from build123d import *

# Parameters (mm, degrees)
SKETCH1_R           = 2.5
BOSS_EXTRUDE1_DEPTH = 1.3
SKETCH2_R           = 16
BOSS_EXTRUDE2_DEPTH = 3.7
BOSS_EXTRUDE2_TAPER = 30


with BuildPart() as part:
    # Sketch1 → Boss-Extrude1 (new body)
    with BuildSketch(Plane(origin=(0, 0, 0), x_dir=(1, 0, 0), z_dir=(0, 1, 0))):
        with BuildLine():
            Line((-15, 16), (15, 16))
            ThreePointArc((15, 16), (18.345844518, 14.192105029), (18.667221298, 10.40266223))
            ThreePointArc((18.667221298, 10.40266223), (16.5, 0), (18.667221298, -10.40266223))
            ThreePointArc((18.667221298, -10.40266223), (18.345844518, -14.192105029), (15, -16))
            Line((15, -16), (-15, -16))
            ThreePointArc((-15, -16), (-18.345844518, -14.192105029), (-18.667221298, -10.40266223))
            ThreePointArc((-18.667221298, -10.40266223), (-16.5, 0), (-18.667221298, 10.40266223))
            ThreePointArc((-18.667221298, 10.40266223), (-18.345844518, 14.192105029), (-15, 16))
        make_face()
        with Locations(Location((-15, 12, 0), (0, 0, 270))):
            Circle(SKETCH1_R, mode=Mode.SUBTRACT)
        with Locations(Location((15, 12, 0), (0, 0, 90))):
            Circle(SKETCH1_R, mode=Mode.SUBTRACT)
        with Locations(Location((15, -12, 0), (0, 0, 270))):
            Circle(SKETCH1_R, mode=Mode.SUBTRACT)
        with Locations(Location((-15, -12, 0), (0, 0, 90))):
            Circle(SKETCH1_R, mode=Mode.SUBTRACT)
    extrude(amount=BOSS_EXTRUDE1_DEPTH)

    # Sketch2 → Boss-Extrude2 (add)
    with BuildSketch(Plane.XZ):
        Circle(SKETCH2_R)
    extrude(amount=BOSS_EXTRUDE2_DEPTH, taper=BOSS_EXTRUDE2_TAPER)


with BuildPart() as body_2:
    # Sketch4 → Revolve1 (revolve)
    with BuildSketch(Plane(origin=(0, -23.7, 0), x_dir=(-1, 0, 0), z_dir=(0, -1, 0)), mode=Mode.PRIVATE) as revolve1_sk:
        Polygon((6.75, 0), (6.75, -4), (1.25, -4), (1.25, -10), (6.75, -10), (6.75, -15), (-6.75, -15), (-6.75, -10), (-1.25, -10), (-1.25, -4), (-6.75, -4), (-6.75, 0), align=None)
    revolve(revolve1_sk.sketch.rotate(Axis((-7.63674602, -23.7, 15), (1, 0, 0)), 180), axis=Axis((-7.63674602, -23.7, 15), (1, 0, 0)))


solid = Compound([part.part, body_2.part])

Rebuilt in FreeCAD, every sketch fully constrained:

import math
import FreeCAD as App
import Part
import Sketcher

doc = App.newDocument("Part")
body = doc.addObject("PartDesign::Body", "Body")

# Sketch on XZ plane
sketch1 = body.newObject("Sketcher::SketchObject", "Sketch")
sketch1.AttachmentSupport = (doc.getObject("XZ_Plane"), [""])
sketch1.MapMode = "FlatFace"
sketch1.addGeometry(Part.LineSegment(App.Vector(15, -16, 0), App.Vector(-15, -16, 0)), False)
sketch1.addGeometry(Part.ArcOfCircle(Part.Circle(App.Vector(-15, -12, 0), App.Vector(0, 0, 1), 4), math.radians(156), math.radians(270)), False)
sketch1.addGeometry(Part.ArcOfCircle(Part.Circle(App.Vector(-42.5, 0, 0), App.Vector(0, 0, 1), 26.1), math.radians(-24), math.radians(24)), False)
sketch1.addGeometry(Part.ArcOfCircle(Part.Circle(App.Vector(-15, 12, 0), App.Vector(0, 0, 1), 4), math.radians(90), math.radians(204)), False)
sketch1.addGeometry(Part.LineSegment(App.Vector(-15, 16, 0), App.Vector(15, 16, 0)), False)
sketch1.addGeometry(Part.ArcOfCircle(Part.Circle(App.Vector(15, 12, 0), App.Vector(0, 0, 1), 4), math.radians(-24), math.radians(90)), False)
sketch1.addGeometry(Part.ArcOfCircle(Part.Circle(App.Vector(42.5, 0, 0), App.Vector(0, 0, 1), 26.1), math.radians(156), math.radians(204)), False)
sketch1.addGeometry(Part.ArcOfCircle(Part.Circle(App.Vector(15, -12, 0), App.Vector(0, 0, 1), 4), math.radians(-90), math.radians(24)), False)
sketch1.addGeometry(Part.Circle(App.Vector(15, 12, 0), App.Vector(0, 0, 1), 2.5), False)
sketch1.addGeometry(Part.Circle(App.Vector(-15, 12, 0), App.Vector(0, 0, 1), 2.5), False)
sketch1.addGeometry(Part.Circle(App.Vector(15, -12, 0), App.Vector(0, 0, 1), 2.5), False)
sketch1.addGeometry(Part.Circle(App.Vector(-15, -12, 0), App.Vector(0, 0, 1), 2.5), False)
sketch1.addConstraint(Sketcher.Constraint("Tangent", 0, 2, 1, 2))
sketch1.addConstraint(Sketcher.Constraint("Tangent", 1, 1, 2, 1))
sketch1.addConstraint(Sketcher.Constraint("Tangent", 2, 2, 3, 2))
sketch1.addConstraint(Sketcher.Constraint("Tangent", 3, 1, 4, 1))
sketch1.addConstraint(Sketcher.Constraint("Tangent", 4, 2, 5, 2))
sketch1.addConstraint(Sketcher.Constraint("Tangent", 5, 1, 6, 1))
sketch1.addConstraint(Sketcher.Constraint("Tangent", 6, 2, 7, 2))
sketch1.addConstraint(Sketcher.Constraint("Tangent", 7, 1, 0, 1))
sketch1.addConstraint(Sketcher.Constraint("Horizontal", 0))
sketch1.addConstraint(Sketcher.Constraint("Horizontal", 4))
sketch1.addConstraint(Sketcher.Constraint("Coincident", 8, 3, 5, 3))
sketch1.addConstraint(Sketcher.Constraint("Coincident", 9, 3, 3, 3))
sketch1.addConstraint(Sketcher.Constraint("Coincident", 10, 3, 7, 3))
sketch1.addConstraint(Sketcher.Constraint("Coincident", 11, 3, 1, 3))
sketch1.addConstraint(Sketcher.Constraint("Equal", 1, 3))
sketch1.addConstraint(Sketcher.Constraint("Equal", 3, 5))
sketch1.addConstraint(Sketcher.Constraint("Equal", 2, 6))
sketch1.addConstraint(Sketcher.Constraint("Equal", 5, 7))
sketch1.addConstraint(Sketcher.Constraint("Equal", 8, 9))
sketch1.addConstraint(Sketcher.Constraint("Equal", 9, 10))
sketch1.addConstraint(Sketcher.Constraint("Equal", 10, 11))
sketch1.addConstraint(Sketcher.Constraint("Symmetric", 1, 3, 5, 3, -1, 1))
sketch1.addConstraint(Sketcher.Constraint("Symmetric", 2, 3, 6, 3, -2))
sketch1.addConstraint(Sketcher.Constraint("Diameter", 8, 5.0))
sketch1.addConstraint(Sketcher.Constraint("Radius", 1, 4.0))
sketch1.addConstraint(Sketcher.Constraint("DistanceX", 0, 2, 0, 1, 30.0))
sketch1.addConstraint(Sketcher.Constraint("Radius", 2, 26.05))
sketch1.addConstraint(Sketcher.Constraint("DistanceY", 1, 3, -1, 1, 12.0))
pad1 = body.newObject("PartDesign::Pad", "Pad")
pad1.Profile = sketch1
pad1.Length = 1.3
pad1.Reversed = True

# Sketch on XZ plane
sketch2 = body.newObject("Sketcher::SketchObject", "Sketch001")
sketch2.AttachmentSupport = (doc.getObject("XZ_Plane"), [""])
sketch2.MapMode = "FlatFace"
sketch2.addGeometry(Part.Circle(App.Vector(0, 0, 0), App.Vector(0, 0, 1), 16), False)
sketch2.addConstraint(Sketcher.Constraint("Coincident", 0, 3, -1, 1))
sketch2.addConstraint(Sketcher.Constraint("Diameter", 0, 32.0))
pad2 = body.newObject("PartDesign::Pad", "Pad001")
pad2.Profile = sketch2
pad2.Length = 3.7
pad2.TaperAngle = -30
body2 = doc.addObject("PartDesign::Body", "Body001")

# Sketch on XZ plane
sketch3 = body2.newObject("Sketcher::SketchObject", "Sketch002")
sketch3.AttachmentSupport = (doc.getObject("XZ_Plane001"), [""])
sketch3.MapMode = "FlatFace"
sketch3.AttachmentOffset = App.Placement(App.Vector(0, 0, 23.7), App.Rotation())
sketch3.addGeometry(Part.LineSegment(App.Vector(-6.8, 4, 0), App.Vector(-6.8, 0, 0)), False)
sketch3.addGeometry(Part.LineSegment(App.Vector(-6.8, 0, 0), App.Vector(6.8, 0, 0)), False)
sketch3.addGeometry(Part.LineSegment(App.Vector(6.8, 0, 0), App.Vector(6.8, 4, 0)), False)
sketch3.addGeometry(Part.LineSegment(App.Vector(6.8, 4, 0), App.Vector(1.2, 4, 0)), False)
sketch3.addGeometry(Part.LineSegment(App.Vector(1.2, 4, 0), App.Vector(1.2, 10, 0)), False)
sketch3.addGeometry(Part.LineSegment(App.Vector(1.2, 10, 0), App.Vector(6.8, 10, 0)), False)
sketch3.addGeometry(Part.LineSegment(App.Vector(6.8, 10, 0), App.Vector(6.8, 15, 0)), False)
sketch3.addGeometry(Part.LineSegment(App.Vector(6.8, 15, 0), App.Vector(-6.8, 15, 0)), False)
sketch3.addGeometry(Part.LineSegment(App.Vector(-6.8, 15, 0), App.Vector(-6.8, 10, 0)), False)
sketch3.addGeometry(Part.LineSegment(App.Vector(-6.8, 10, 0), App.Vector(-1.2, 10, 0)), False)
sketch3.addGeometry(Part.LineSegment(App.Vector(-1.2, 10, 0), App.Vector(-1.2, 4, 0)), False)
sketch3.addGeometry(Part.LineSegment(App.Vector(-1.2, 4, 0), App.Vector(-6.8, 4, 0)), False)
sketch3.addGeometry(Part.LineSegment(App.Vector(-6.8, 15, 0), App.Vector(6.8, 15, 0)), True)  # axis
sketch3.addConstraint(Sketcher.Constraint("Coincident", 0, 2, 1, 1))
sketch3.addConstraint(Sketcher.Constraint("Coincident", 1, 2, 2, 1))
sketch3.addConstraint(Sketcher.Constraint("Coincident", 2, 2, 3, 1))
sketch3.addConstraint(Sketcher.Constraint("Coincident", 3, 2, 4, 1))
sketch3.addConstraint(Sketcher.Constraint("Coincident", 4, 2, 5, 1))
sketch3.addConstraint(Sketcher.Constraint("Coincident", 5, 2, 6, 1))
sketch3.addConstraint(Sketcher.Constraint("Coincident", 6, 2, 7, 1))
sketch3.addConstraint(Sketcher.Constraint("Coincident", 7, 2, 8, 1))
sketch3.addConstraint(Sketcher.Constraint("Coincident", 8, 2, 9, 1))
sketch3.addConstraint(Sketcher.Constraint("Coincident", 9, 2, 10, 1))
sketch3.addConstraint(Sketcher.Constraint("Coincident", 10, 2, 11, 1))
sketch3.addConstraint(Sketcher.Constraint("Coincident", 11, 2, 0, 1))
sketch3.addConstraint(Sketcher.Constraint("Vertical", 0))
sketch3.addConstraint(Sketcher.Constraint("Horizontal", 1))
sketch3.addConstraint(Sketcher.Constraint("Vertical", 2))
sketch3.addConstraint(Sketcher.Constraint("Horizontal", 3))
sketch3.addConstraint(Sketcher.Constraint("Vertical", 4))
sketch3.addConstraint(Sketcher.Constraint("Horizontal", 5))
sketch3.addConstraint(Sketcher.Constraint("Vertical", 6))
sketch3.addConstraint(Sketcher.Constraint("Horizontal", 7))
sketch3.addConstraint(Sketcher.Constraint("Vertical", 8))
sketch3.addConstraint(Sketcher.Constraint("Horizontal", 9))
sketch3.addConstraint(Sketcher.Constraint("Vertical", 10))
sketch3.addConstraint(Sketcher.Constraint("Horizontal", 11))
sketch3.addConstraint(Sketcher.Constraint("Horizontal", 12))
sketch3.addConstraint(Sketcher.Constraint("Coincident", 12, 1, 7, 2))
sketch3.addConstraint(Sketcher.Constraint("Symmetric", 0, 2, 1, 2, -1, 1))
sketch3.addConstraint(Sketcher.Constraint("Symmetric", 5, 2, 8, 2, -2))
sketch3.addConstraint(Sketcher.Constraint("Symmetric", 3, 2, 10, 2, -2))
sketch3.addConstraint(Sketcher.Constraint("Vertical", 2, 2, 5, 2))
sketch3.addConstraint(Sketcher.Constraint("Vertical", 5, 2, 12, 2))
sketch3.addConstraint(Sketcher.Constraint("DistanceY", 0, 2, 0, 1, 4.0))
sketch3.addConstraint(Sketcher.Constraint("DistanceY", 4, 1, 4, 2, 6.0))
sketch3.addConstraint(Sketcher.Constraint("DistanceY", 6, 1, 6, 2, 5.0))
sketch3.addConstraint(Sketcher.Constraint("DistanceX", 1, 1, 1, 2, 13.5))
sketch3.addConstraint(Sketcher.Constraint("DistanceX", 3, 2, 3, 1, 5.5))
revolution = body2.newObject("PartDesign::Revolution", "Revolution")
revolution.Profile = sketch3
revolution.ReferenceAxis = (sketch3, ["Axis0"])
revolution.Angle = 360

doc.recompute()
